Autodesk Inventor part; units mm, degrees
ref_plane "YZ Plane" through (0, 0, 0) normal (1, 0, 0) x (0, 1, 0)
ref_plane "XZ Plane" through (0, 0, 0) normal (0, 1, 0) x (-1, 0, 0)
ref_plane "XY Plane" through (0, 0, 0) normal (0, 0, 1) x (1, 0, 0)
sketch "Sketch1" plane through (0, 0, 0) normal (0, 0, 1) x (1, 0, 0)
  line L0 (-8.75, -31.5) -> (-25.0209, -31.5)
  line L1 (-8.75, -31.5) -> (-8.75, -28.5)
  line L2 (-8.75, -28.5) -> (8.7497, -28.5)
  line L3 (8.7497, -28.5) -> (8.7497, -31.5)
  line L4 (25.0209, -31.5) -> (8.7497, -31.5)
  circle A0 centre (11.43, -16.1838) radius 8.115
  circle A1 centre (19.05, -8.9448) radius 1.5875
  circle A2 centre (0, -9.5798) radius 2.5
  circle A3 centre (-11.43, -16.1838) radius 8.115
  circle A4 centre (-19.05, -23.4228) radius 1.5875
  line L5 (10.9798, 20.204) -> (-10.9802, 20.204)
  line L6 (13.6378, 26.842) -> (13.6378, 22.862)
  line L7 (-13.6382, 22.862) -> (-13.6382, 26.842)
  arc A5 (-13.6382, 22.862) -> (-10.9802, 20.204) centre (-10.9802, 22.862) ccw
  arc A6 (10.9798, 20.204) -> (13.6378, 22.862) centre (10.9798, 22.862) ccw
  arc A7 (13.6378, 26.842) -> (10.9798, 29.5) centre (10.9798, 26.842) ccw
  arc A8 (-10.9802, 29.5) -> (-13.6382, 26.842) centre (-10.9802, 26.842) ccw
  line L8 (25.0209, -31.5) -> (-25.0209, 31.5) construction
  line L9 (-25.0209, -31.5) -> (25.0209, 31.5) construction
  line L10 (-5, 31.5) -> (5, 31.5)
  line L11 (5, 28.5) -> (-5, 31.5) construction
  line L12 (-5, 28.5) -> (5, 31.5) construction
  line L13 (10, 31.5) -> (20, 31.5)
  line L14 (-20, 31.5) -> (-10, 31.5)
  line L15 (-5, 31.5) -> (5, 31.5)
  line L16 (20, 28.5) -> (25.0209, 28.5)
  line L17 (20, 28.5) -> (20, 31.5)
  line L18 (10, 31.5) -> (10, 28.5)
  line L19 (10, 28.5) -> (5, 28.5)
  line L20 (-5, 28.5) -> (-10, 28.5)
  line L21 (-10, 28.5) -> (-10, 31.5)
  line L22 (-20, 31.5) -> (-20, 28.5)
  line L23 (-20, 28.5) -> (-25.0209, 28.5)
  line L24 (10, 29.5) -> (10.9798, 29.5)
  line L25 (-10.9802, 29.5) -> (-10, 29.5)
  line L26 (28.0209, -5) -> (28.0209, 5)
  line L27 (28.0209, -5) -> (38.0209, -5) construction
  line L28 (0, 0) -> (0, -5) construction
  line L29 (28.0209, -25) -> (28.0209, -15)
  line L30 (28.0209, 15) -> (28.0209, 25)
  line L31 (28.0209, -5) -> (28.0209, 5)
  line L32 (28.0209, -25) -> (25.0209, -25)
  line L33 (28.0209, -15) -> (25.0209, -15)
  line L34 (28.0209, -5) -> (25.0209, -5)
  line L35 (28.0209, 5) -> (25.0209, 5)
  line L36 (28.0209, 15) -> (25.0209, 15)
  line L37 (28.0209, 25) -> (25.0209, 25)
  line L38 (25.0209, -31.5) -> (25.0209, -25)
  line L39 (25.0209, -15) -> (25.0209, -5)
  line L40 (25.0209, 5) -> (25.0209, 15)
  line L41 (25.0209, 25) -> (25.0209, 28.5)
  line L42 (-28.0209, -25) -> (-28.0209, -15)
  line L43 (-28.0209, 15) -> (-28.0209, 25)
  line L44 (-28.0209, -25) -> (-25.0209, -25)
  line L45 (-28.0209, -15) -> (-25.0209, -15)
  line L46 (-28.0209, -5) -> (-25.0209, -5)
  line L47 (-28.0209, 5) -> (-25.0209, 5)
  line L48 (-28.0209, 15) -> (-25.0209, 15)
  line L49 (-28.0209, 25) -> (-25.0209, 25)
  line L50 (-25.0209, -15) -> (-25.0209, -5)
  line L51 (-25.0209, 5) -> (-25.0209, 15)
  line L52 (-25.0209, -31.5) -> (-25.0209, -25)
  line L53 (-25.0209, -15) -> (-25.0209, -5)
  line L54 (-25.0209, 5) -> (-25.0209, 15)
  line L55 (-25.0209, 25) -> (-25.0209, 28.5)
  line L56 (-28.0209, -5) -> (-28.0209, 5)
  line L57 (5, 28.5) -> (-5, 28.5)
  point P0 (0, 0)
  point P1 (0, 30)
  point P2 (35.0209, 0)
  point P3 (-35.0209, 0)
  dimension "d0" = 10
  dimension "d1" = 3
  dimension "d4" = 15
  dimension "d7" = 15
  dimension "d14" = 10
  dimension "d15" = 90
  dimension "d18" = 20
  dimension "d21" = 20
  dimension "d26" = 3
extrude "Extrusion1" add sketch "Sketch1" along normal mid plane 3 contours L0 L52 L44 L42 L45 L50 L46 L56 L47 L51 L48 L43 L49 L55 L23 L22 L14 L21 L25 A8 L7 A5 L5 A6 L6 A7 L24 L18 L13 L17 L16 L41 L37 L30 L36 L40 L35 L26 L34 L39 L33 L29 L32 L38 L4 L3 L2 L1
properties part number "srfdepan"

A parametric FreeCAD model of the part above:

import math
import FreeCAD as App
import Part
import Sketcher

V = App.Vector

doc = App.newDocument("Part")
body = doc.addObject("PartDesign::Body", "Body")

sketch1 = body.newObject("Sketcher::SketchObject", "Sketch")
sketch1.AttachmentSupport = (doc.getObject("XY_Plane"), [""])
sketch1.MapMode = "FlatFace"
sketch1.addGeometry([
    Part.LineSegment(V(-25, -31.5, 0), V(-8.8, -31.5, 0)),
    Part.LineSegment(V(-8.8, -31.5, 0), V(-8.8, -28.5, 0)),
    Part.LineSegment(V(-8.8, -28.5, 0), V(8.7, -28.5, 0)),
    Part.LineSegment(V(8.7, -28.5, 0), V(8.7, -31.5, 0)),
    Part.LineSegment(V(8.7, -31.5, 0), V(25, -31.5, 0)),
    Part.LineSegment(V(25, -31.5, 0), V(25, -25, 0)),
    Part.LineSegment(V(25, -25, 0), V(28, -25, 0)),
    Part.LineSegment(V(28, -25, 0), V(28, -15, 0)),
    Part.LineSegment(V(28, -15, 0), V(25, -15, 0)),
    Part.LineSegment(V(25, -15, 0), V(25, -5, 0)),
    Part.LineSegment(V(25, -5, 0), V(28, -5, 0)),
    Part.LineSegment(V(28, -5, 0), V(28, 5, 0)),
    Part.LineSegment(V(28, 5, 0), V(25, 5, 0)),
    Part.LineSegment(V(25, 5, 0), V(25, 15, 0)),
    Part.LineSegment(V(25, 15, 0), V(28, 15, 0)),
    Part.LineSegment(V(28, 15, 0), V(28, 25, 0)),
    Part.LineSegment(V(28, 25, 0), V(25, 25, 0)),
    Part.LineSegment(V(25, 25, 0), V(25, 28.5, 0)),
    Part.LineSegment(V(25, 28.5, 0), V(20, 28.5, 0)),
    Part.LineSegment(V(20, 28.5, 0), V(20, 31.5, 0)),
    Part.LineSegment(V(20, 31.5, 0), V(10, 31.5, 0)),
    Part.LineSegment(V(10, 31.5, 0), V(10, 29.5, 0)),
    Part.LineSegment(V(10, 29.5, 0), V(11, 29.5, 0)),
    Part.ArcOfCircle(Part.Circle(V(11, 26.8, 0), V(0, 0, 1), 2.7), math.radians(0), math.radians(90)),
    Part.LineSegment(V(13.6, 26.8, 0), V(13.6, 22.9, 0)),
    Part.ArcOfCircle(Part.Circle(V(11, 22.9, 0), V(0, 0, 1), 2.7), math.radians(-90), math.radians(0)),
    Part.LineSegment(V(11, 20.2, 0), V(-11, 20.2, 0)),
    Part.ArcOfCircle(Part.Circle(V(-11, 22.9, 0), V(0, 0, 1), 2.7), math.radians(180), math.radians(270)),
    Part.LineSegment(V(-13.6, 22.9, 0), V(-13.6, 26.8, 0)),
    Part.ArcOfCircle(Part.Circle(V(-11, 26.8, 0), V(0, 0, 1), 2.7), math.radians(90), math.radians(180)),
    Part.LineSegment(V(-11, 29.5, 0), V(-10, 29.5, 0)),
    Part.LineSegment(V(-10, 29.5, 0), V(-10, 31.5, 0)),
    Part.LineSegment(V(-10, 31.5, 0), V(-20, 31.5, 0)),
    Part.LineSegment(V(-20, 31.5, 0), V(-20, 28.5, 0)),
    Part.LineSegment(V(-20, 28.5, 0), V(-25, 28.5, 0)),
    Part.LineSegment(V(-25, 28.5, 0), V(-25, 25, 0)),
    Part.LineSegment(V(-25, 25, 0), V(-28, 25, 0)),
    Part.LineSegment(V(-28, 25, 0), V(-28, 15, 0)),
    Part.LineSegment(V(-28, 15, 0), V(-25, 15, 0)),
    Part.LineSegment(V(-25, 15, 0), V(-25, 5, 0)),
    Part.LineSegment(V(-25, 5, 0), V(-28, 5, 0)),
    Part.LineSegment(V(-28, 5, 0), V(-28, -5, 0)),
    Part.LineSegment(V(-28, -5, 0), V(-25, -5, 0)),
    Part.LineSegment(V(-25, -5, 0), V(-25, -15, 0)),
    Part.LineSegment(V(-25, -15, 0), V(-28, -15, 0)),
    Part.LineSegment(V(-28, -15, 0), V(-28, -25, 0)),
    Part.LineSegment(V(-28, -25, 0), V(-25, -25, 0)),
    Part.LineSegment(V(-25, -25, 0), V(-25, -31.5, 0)),
    Part.Circle(V(-19.1, -23.4, 0), V(0, 0, 1), 1.6),
    Part.Circle(V(-11.4, -16.2, 0), V(0, 0, 1), 8.1),
    Part.Circle(V(11.4, -16.2, 0), V(0, 0, 1), 8.1),
    Part.Circle(V(0, -9.6, 0), V(0, 0, 1), 2.5),
    Part.Circle(V(19.1, -8.9, 0), V(0, 0, 1), 1.6),
], False)
sketch1.addConstraint([
    Sketcher.Constraint("Coincident", 0, 2, 1, 1),
    Sketcher.Constraint("Coincident", 1, 2, 2, 1),
    Sketcher.Constraint("Coincident", 2, 2, 3, 1),
    Sketcher.Constraint("Coincident", 3, 2, 4, 1),
    Sketcher.Constraint("Coincident", 4, 2, 5, 1),
    Sketcher.Constraint("Coincident", 5, 2, 6, 1),
    Sketcher.Constraint("Coincident", 6, 2, 7, 1),
    Sketcher.Constraint("Coincident", 7, 2, 8, 1),
    Sketcher.Constraint("Coincident", 8, 2, 9, 1),
    Sketcher.Constraint("Coincident", 9, 2, 10, 1),
    Sketcher.Constraint("Coincident", 10, 2, 11, 1),
    Sketcher.Constraint("Coincident", 11, 2, 12, 1),
    Sketcher.Constraint("Coincident", 12, 2, 13, 1),
    Sketcher.Constraint("Coincident", 13, 2, 14, 1),
    Sketcher.Constraint("Coincident", 14, 2, 15, 1),
    Sketcher.Constraint("Coincident", 15, 2, 16, 1),
    Sketcher.Constraint("Coincident", 16, 2, 17, 1),
    Sketcher.Constraint("Coincident", 17, 2, 18, 1),
    Sketcher.Constraint("Coincident", 18, 2, 19, 1),
    Sketcher.Constraint("Coincident", 19, 2, 20, 1),
    Sketcher.Constraint("Coincident", 20, 2, 21, 1),
    Sketcher.Constraint("Coincident", 21, 2, 22, 1),
    Sketcher.Constraint("Tangent", 22, 2, 23, 2),
    Sketcher.Constraint("Tangent", 23, 1, 24, 1),
    Sketcher.Constraint("Tangent", 24, 2, 25, 2),
    Sketcher.Constraint("Tangent", 25, 1, 26, 1),
    Sketcher.Constraint("Tangent", 26, 2, 27, 2),
    Sketcher.Constraint("Tangent", 27, 1, 28, 1),
    Sketcher.Constraint("Tangent", 28, 2, 29, 2),
    Sketcher.Constraint("Tangent", 29, 1, 30, 1),
    Sketcher.Constraint("Coincident", 30, 2, 31, 1),
    Sketcher.Constraint("Coincident", 31, 2, 32, 1),
    Sketcher.Constraint("Coincident", 32, 2, 33, 1),
    Sketcher.Constraint("Coincident", 33, 2, 34, 1),
    Sketcher.Constraint("Coincident", 34, 2, 35, 1),
    Sketcher.Constraint("Coincident", 35, 2, 36, 1),
    Sketcher.Constraint("Coincident", 36, 2, 37, 1),
    Sketcher.Constraint("Coincident", 37, 2, 38, 1),
    Sketcher.Constraint("Coincident", 38, 2, 39, 1),
    Sketcher.Constraint("Coincident", 39, 2, 40, 1),
    Sketcher.Constraint("Coincident", 40, 2, 41, 1),
    Sketcher.Constraint("Coincident", 41, 2, 42, 1),
    Sketcher.Constraint("Coincident", 42, 2, 43, 1),
    Sketcher.Constraint("Coincident", 43, 2, 44, 1),
    Sketcher.Constraint("Coincident", 44, 2, 45, 1),
    Sketcher.Constraint("Coincident", 45, 2, 46, 1),
    Sketcher.Constraint("Coincident", 46, 2, 47, 1),
    Sketcher.Constraint("Coincident", 47, 2, 0, 1),
    Sketcher.Constraint("Horizontal", 0),
    Sketcher.Constraint("Vertical", 1),
    Sketcher.Constraint("Horizontal", 2),
    Sketcher.Constraint("Vertical", 3),
    Sketcher.Constraint("Horizontal", 4),
    Sketcher.Constraint("Vertical", 5),
    Sketcher.Constraint("Horizontal", 6),
    Sketcher.Constraint("Vertical", 7),
    Sketcher.Constraint("Horizontal", 8),
    Sketcher.Constraint("Vertical", 9),
    Sketcher.Constraint("Horizontal", 10),
    Sketcher.Constraint("Vertical", 11),
    Sketcher.Constraint("Horizontal", 12),
    Sketcher.Constraint("Vertical", 13),
    Sketcher.Constraint("Horizontal", 14),
    Sketcher.Constraint("Vertical", 15),
    Sketcher.Constraint("Horizontal", 16),
    Sketcher.Constraint("Vertical", 17),
    Sketcher.Constraint("Horizontal", 18),
    Sketcher.Constraint("Vertical", 19),
    Sketcher.Constraint("Horizontal", 20),
    Sketcher.Constraint("Vertical", 21),
    Sketcher.Constraint("Horizontal", 22),
    Sketcher.Constraint("Vertical", 24),
    Sketcher.Constraint("Horizontal", 26),
    Sketcher.Constraint("Vertical", 28),
    Sketcher.Constraint("Horizontal", 30),
    Sketcher.Constraint("Vertical", 31),
    Sketcher.Constraint("Horizontal", 32),
    Sketcher.Constraint("Vertical", 33),
    Sketcher.Constraint("Horizontal", 34),
    Sketcher.Constraint("Vertical", 35),
    Sketcher.Constraint("Horizontal", 36),
    Sketcher.Constraint("Vertical", 37),
    Sketcher.Constraint("Horizontal", 38),
    Sketcher.Constraint("Vertical", 39),
    Sketcher.Constraint("Horizontal", 40),
    Sketcher.Constraint("Vertical", 41),
    Sketcher.Constraint("Horizontal", 42),
    Sketcher.Constraint("Vertical", 43),
    Sketcher.Constraint("Horizontal", 44),
    Sketcher.Constraint("Vertical", 45),
    Sketcher.Constraint("Horizontal", 46),
    Sketcher.Constraint("Vertical", 47),
    Sketcher.Constraint("Equal", 23, 25),
    Sketcher.Constraint("Equal", 25, 27),
    Sketcher.Constraint("Equal", 27, 29),
    Sketcher.Constraint("Equal", 49, 50),
    Sketcher.Constraint("Equal", 48, 52),
    Sketcher.Constraint("Symmetric", 5, 2, 35, 2, -1, 1),
    Sketcher.Constraint("Symmetric", 7, 2, 37, 2, -1, 1),
    Sketcher.Constraint("Symmetric", 9, 2, 39, 2, -1, 1),
    Sketcher.Constraint("Symmetric", 11, 2, 41, 2, -1, 1),
    Sketcher.Constraint("Symmetric", 13, 2, 43, 2, -1, 1),
    Sketcher.Constraint("Symmetric", 15, 2, 45, 2, -1, 1),
    Sketcher.Constraint("Symmetric", 49, 3, 50, 3, -2),
    Sketcher.Constraint("Symmetric", 0, 2, 3, 2, -2),
    Sketcher.Constraint("Symmetric", 23, 1, 28, 2, -2),
    Sketcher.Constraint("Symmetric", 20, 2, 31, 2, -2),
    Sketcher.Constraint("Symmetric", 18, 2, 33, 2, -2),
    Sketcher.Constraint("Symmetric", 16, 2, 35, 2, -2),
    Sketcher.Constraint("Symmetric", 14, 2, 37, 2, -2),
    Sketcher.Constraint("Symmetric", 12, 2, 39, 2, -2),
    Sketcher.Constraint("PointOnObject", 51, 3, -2),
    Sketcher.Constraint("Vertical", 5, 2, 8, 2),
    Sketcher.Constraint("Vertical", 7, 2, 10, 2),
    Sketcher.Constraint("Vertical", 43, 2, 46, 2),
    Sketcher.Constraint("Equal", 46, 1),
    Sketcher.Constraint("Equal", 32, 7),
    Sketcher.Constraint("Equal", 7, 9),
    Sketcher.Constraint("Equal", 9, 11),
    Sketcher.Constraint("Equal", 3, 19),
    Sketcher.Constraint("DistanceX", 6, 1, 6, 2, 3.0),
    Sketcher.Constraint("DistanceX", 20, 2, 20, 1, 10.0),
    Sketcher.Constraint("Diameter", 51, 5.0),
    Sketcher.Constraint("DistanceX", -1, 1, 18, 2, 20.0),
    Sketcher.Constraint("Diameter", 49, 16.23),
    Sketcher.Constraint("DistanceY", 21, 2, 21, 1, 2.0),
    Sketcher.Constraint("Diameter", 48, 3.175),
    Sketcher.Constraint("DistanceY", 5, 1, 5, 2, 6.5),
    Sketcher.Constraint("DistanceY", 17, 1, 17, 2, 3.5),
    Sketcher.Constraint("Radius", 23, 2.658),
    Sketcher.Constraint("DistanceX", 26, 2, 26, 1, 21.96),
    Sketcher.Constraint("DistanceY", 24, 2, 24, 1, 3.98),
    Sketcher.Constraint("DistanceX", 48, 3, 0, 2, 10.3),
    Sketcher.Constraint("DistanceX", 0, 2, 52, 3, 27.8),
    Sketcher.Constraint("DistanceX", 0, 1, 0, 2, 16.271),
    Sketcher.Constraint("DistanceX", 18, 2, 18, 1, 5.021),
    Sketcher.Constraint("DistanceX", 49, 3, -1, 1, 11.43),
    Sketcher.Constraint("DistanceY", 48, 3, 49, 3, 7.239),
    Sketcher.Constraint("DistanceY", 49, 3, 51, 3, 6.604),
    Sketcher.Constraint("DistanceY", 50, 3, 52, 3, 7.239),
    Sketcher.Constraint("DistanceY", 48, 3, -1, 1, 23.4228),
])
pad1 = body.newObject("PartDesign::Pad", "Pad")
pad1.Profile = sketch1
pad1.Length = 3
pad1.Midplane = True

doc.recompute()
